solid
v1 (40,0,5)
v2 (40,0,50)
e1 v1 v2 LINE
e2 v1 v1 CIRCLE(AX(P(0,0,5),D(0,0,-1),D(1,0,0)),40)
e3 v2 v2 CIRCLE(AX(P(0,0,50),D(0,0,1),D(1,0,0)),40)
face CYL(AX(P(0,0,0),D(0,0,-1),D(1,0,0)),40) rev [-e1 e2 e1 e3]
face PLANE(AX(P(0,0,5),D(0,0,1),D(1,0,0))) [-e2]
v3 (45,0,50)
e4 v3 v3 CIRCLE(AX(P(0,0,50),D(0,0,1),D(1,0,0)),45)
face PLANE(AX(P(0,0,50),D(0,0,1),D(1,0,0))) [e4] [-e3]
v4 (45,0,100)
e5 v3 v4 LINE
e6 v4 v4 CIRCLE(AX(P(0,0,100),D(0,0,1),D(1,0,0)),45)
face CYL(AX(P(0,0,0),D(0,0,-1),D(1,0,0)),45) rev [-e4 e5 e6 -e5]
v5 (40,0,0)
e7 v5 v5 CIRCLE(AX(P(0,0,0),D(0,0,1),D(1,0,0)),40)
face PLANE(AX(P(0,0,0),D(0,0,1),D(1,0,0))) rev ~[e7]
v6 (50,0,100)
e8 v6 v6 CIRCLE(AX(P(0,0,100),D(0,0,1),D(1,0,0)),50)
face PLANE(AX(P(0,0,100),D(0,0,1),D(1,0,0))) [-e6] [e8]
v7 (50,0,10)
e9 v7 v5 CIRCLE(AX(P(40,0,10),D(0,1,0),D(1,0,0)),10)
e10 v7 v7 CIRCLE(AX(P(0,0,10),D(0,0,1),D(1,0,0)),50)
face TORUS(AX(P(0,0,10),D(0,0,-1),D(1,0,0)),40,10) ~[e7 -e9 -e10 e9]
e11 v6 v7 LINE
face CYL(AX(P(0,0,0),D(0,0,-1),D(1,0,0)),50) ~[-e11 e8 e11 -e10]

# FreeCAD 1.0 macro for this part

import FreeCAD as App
import Part
import Sketcher

V = App.Vector


def edges_at(feature, points):
    """Names of the edges that pass closest to the given points."""
    edges = feature.Shape.Edges
    near = lambda p: min(range(len(edges)), key=lambda i: edges[i].distToShape(Part.Vertex(*p))[0])
    return sorted({f"Edge{near(p) + 1}" for p in points})

doc = App.newDocument("Part")
params = doc.addObject("Spreadsheet::Sheet", "Params")
for row, (alias, value) in enumerate([
    ("sketch1_diameter", "90 mm"),
    ("sketch1_diameter2", "80 mm"),
    ("pad1_length", "50 mm"),
    ("sketch2_diameter", "100 mm"),
    ("sketch2_diameter2", "90 mm"),
    ("pad2_length", "100 mm"),
    ("sketch3_diameter", "100 mm"),
    ("pad3_length", "5 mm"),
    ("fillet_radius", "10 mm"),
], start=1):
    params.set(f"A{row}", alias)
    params.set(f"B{row}", "=" + value)
    params.setAlias(f"B{row}", alias)

body = doc.addObject("PartDesign::Body", "Body")

# Sketch on XY plane
sketch1 = body.newObject("Sketcher::SketchObject", "Sketch")
sketch1.AttachmentSupport = (doc.getObject("XY_Plane"), [""])
sketch1.MapMode = "FlatFace"
sketch1.addGeometry(Part.Circle(V(0, 0, 0), V(0, 0, 1), 45), False)
sketch1.addGeometry(Part.Circle(V(0, 0, 0), V(0, 0, 1), 40), False)
sketch1.addConstraint(Sketcher.Constraint("Coincident", 0, 3, -1, 1))
sketch1.addConstraint(Sketcher.Constraint("Coincident", 1, 3, -1, 1))
sketch1.addConstraint(Sketcher.Constraint("Diameter", 0, 90.0))
sketch1.addConstraint(Sketcher.Constraint("Diameter", 1, 80.0))
sketch1.setExpression("Constraints[2]", "Params.sketch1_diameter")
sketch1.setExpression("Constraints[3]", "Params.sketch1_diameter2")
pad1 = body.newObject("PartDesign::Pad", "Pad")
pad1.Profile = sketch1
pad1.setExpression("Length", "Params.pad1_length")

# Sketch on XY plane
sketch2 = body.newObject("Sketcher::SketchObject", "Sketch001")
sketch2.AttachmentSupport = (doc.getObject("XY_Plane"), [""])
sketch2.MapMode = "FlatFace"
sketch2.addGeometry(Part.Circle(V(0, 0, 0), V(0, 0, 1), 50), False)
sketch2.addGeometry(Part.Circle(V(0, 0, 0), V(0, 0, 1), 45), False)
sketch2.addConstraint(Sketcher.Constraint("Coincident", 0, 3, -1, 1))
sketch2.addConstraint(Sketcher.Constraint("Coincident", 1, 3, -1, 1))
sketch2.addConstraint(Sketcher.Constraint("Diameter", 0, 100.0))
sketch2.addConstraint(Sketcher.Constraint("Diameter", 1, 90.0))
sketch2.setExpression("Constraints[2]", "Params.sketch2_diameter")
sketch2.setExpression("Constraints[3]", "Params.sketch2_diameter2")
pad2 = body.newObject("PartDesign::Pad", "Pad001")
pad2.Profile = sketch2
pad2.setExpression("Length", "Params.pad2_length")

# Sketch on XY plane
sketch3 = body.newObject("Sketcher::SketchObject", "Sketch002")
sketch3.AttachmentSupport = (doc.getObject("XY_Plane"), [""])
sketch3.MapMode = "FlatFace"
sketch3.addGeometry(Part.Circle(V(0, 0, 0), V(0, 0, 1), 50), False)
sketch3.addConstraint(Sketcher.Constraint("Coincident", 0, 3, -1, 1))
sketch3.addConstraint(Sketcher.Constraint("Diameter", 0, 100.0))
sketch3.setExpression("Constraints[1]", "Params.sketch3_diameter")
pad3 = body.newObject("PartDesign::Pad", "Pad002")
pad3.Profile = sketch3
pad3.setExpression("Length", "Params.pad3_length")
doc.recompute()

fillet = body.newObject("PartDesign::Fillet", "Fillet")
fillet.Base = (pad3, edges_at(pad3, [(-50, 0, 0)]))
fillet.setExpression("Radius", "Params.fillet_radius")

doc.recompute()
